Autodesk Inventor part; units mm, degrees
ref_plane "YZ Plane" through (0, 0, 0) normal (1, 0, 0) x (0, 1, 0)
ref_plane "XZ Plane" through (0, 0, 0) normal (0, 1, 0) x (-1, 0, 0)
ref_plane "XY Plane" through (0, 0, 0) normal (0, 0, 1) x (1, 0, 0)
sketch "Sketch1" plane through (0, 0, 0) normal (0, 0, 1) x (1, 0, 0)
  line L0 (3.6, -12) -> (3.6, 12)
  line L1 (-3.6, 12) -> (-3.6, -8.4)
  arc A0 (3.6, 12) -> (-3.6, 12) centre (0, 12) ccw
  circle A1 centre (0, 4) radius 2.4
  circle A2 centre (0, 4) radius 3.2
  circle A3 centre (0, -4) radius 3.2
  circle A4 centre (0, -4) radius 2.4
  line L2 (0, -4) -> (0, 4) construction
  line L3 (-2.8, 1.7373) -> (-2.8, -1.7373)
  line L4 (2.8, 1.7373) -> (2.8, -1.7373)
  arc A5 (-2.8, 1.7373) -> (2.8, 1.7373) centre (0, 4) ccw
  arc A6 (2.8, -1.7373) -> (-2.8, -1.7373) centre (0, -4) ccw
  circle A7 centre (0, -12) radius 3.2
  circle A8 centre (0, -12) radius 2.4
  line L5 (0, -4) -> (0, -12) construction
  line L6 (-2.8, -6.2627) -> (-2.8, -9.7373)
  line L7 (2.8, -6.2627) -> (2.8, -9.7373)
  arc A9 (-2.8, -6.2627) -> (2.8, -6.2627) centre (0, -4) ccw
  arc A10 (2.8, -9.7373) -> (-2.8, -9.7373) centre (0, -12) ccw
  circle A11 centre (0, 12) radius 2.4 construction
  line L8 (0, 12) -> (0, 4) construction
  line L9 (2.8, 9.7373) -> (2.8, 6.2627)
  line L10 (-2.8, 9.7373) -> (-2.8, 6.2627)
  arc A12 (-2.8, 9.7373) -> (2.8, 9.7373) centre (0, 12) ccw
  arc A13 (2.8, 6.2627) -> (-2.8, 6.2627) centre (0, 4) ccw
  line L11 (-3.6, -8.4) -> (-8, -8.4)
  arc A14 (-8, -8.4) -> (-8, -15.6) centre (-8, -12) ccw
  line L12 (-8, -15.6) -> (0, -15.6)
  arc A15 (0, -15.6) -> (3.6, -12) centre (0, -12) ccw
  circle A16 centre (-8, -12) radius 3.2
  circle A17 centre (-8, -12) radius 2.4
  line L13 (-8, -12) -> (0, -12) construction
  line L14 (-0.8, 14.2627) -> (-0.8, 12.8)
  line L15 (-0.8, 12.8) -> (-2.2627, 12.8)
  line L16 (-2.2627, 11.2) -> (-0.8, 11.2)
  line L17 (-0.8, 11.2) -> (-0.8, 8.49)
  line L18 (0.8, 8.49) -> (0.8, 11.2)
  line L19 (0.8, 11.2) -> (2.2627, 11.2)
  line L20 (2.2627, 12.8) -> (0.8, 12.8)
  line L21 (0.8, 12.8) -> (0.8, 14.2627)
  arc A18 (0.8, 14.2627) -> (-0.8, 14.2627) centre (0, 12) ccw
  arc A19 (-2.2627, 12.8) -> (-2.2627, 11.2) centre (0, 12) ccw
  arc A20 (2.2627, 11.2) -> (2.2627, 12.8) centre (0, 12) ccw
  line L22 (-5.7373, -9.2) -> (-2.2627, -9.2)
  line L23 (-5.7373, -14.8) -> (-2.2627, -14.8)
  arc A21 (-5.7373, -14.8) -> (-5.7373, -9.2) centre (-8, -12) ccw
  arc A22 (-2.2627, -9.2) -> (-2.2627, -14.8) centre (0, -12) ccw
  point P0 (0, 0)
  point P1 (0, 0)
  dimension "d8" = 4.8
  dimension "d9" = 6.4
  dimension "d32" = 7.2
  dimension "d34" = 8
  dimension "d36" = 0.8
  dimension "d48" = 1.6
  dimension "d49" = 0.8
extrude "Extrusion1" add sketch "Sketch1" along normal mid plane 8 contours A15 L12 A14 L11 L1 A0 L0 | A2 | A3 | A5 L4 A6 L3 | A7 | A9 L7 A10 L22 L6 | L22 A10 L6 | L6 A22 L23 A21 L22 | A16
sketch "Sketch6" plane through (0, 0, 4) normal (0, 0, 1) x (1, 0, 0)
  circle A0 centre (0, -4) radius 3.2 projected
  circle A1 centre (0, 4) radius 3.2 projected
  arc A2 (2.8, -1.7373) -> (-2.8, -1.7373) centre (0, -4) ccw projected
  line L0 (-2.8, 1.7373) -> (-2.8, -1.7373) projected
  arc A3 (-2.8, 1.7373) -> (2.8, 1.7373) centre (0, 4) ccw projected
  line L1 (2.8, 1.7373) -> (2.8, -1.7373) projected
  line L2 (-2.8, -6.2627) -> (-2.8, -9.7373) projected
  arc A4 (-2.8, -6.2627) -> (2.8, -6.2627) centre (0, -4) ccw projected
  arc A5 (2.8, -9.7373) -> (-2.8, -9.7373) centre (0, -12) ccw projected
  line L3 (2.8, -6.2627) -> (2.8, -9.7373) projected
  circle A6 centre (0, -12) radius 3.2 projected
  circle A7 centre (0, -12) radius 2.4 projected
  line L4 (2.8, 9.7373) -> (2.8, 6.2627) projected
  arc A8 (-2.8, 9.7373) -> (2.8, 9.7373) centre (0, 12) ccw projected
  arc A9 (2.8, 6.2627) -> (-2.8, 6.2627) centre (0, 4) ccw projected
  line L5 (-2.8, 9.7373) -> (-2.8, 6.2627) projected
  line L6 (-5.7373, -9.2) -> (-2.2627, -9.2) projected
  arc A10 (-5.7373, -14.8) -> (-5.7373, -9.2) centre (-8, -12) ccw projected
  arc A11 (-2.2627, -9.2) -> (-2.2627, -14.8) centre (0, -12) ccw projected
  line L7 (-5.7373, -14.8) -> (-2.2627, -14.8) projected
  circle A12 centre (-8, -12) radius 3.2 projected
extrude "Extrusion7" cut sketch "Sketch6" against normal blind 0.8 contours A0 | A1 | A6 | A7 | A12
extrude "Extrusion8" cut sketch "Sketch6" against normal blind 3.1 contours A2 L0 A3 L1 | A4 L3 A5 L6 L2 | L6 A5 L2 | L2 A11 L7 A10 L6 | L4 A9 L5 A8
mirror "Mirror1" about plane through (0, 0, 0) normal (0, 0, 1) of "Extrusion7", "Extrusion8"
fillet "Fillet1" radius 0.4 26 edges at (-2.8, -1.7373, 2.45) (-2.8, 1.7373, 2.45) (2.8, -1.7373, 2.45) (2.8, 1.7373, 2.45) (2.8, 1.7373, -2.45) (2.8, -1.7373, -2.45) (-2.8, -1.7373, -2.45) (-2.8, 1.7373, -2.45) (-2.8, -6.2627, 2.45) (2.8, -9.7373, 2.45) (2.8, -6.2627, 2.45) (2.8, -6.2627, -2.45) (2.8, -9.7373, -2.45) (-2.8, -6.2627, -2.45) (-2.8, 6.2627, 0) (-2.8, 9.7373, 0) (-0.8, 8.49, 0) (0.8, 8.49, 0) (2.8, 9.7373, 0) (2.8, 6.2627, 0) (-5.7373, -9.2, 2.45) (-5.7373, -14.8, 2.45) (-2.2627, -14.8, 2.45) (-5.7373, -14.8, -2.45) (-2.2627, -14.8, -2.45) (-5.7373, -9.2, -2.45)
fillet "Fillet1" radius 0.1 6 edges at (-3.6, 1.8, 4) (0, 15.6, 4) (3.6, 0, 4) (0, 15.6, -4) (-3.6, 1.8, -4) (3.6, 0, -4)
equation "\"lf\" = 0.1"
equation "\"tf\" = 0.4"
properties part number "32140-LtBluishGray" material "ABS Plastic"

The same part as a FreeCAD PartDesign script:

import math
import FreeCAD as App
import Part
import Sketcher

V = App.Vector
Q = App.Units.Quantity


def edges_at(feature, points):
    """Names of the edges that pass closest to the given points."""
    edges = feature.Shape.Edges
    near = lambda p: min(range(len(edges)), key=lambda i: edges[i].distToShape(Part.Vertex(*p))[0])
    return sorted({f"Edge{near(p) + 1}" for p in points})

doc = App.newDocument("Part")
body = doc.addObject("PartDesign::Body", "Body")

# Sketch on XY plane
sketch1 = doc.addObject("Sketcher::SketchObject", "Sketch")
body.addObject(sketch1)
sketch1.AttachmentSupport = (doc.XY_Plane, [""])
sketch1.MapMode = "FlatFace"
sketch1.addGeometry([
    Part.ArcOfCircle(Part.Circle(V(0, -12, 0), V(0, 0, 1), 3.6), math.radians(-90), math.radians(0)),  # 0
    Part.LineSegment(V(3.6, -12, 0), V(3.6, 12, 0)),  # 1
    Part.ArcOfCircle(Part.Circle(V(0, 12, 0), V(0, 0, 1), 3.6), math.radians(0), math.radians(180)),  # 2
    Part.LineSegment(V(-3.6, 12, 0), V(-3.6, -8.4, 0)),  # 3
    Part.LineSegment(V(-3.6, -8.4, 0), V(-8, -8.4, 0)),  # 4
    Part.ArcOfCircle(Part.Circle(V(-8, -12, 0), V(0, 0, 1), 3.6), math.radians(90), math.radians(270)),  # 5
    Part.LineSegment(V(-8, -15.6, 0), V(0, -15.6, 0)),  # 6
    Part.ArcOfCircle(Part.Circle(V(0, 12, 0), V(0, 0, 1), 3.6), math.radians(-77), math.radians(-39)),  # 7
    Part.LineSegment(V(2.8, 9.7, 0), V(2.8, 6.3, 0)),  # 8
    Part.ArcOfCircle(Part.Circle(V(0, 4, 0), V(0, 0, 1), 3.6), math.radians(39), math.radians(141)),  # 9
    Part.LineSegment(V(-2.8, 6.3, 0), V(-2.8, 9.7, 0)),  # 10
    Part.ArcOfCircle(Part.Circle(V(0, 12, 0), V(0, 0, 1), 3.6), math.radians(-141), math.radians(-103)),  # 11
    Part.LineSegment(V(-0.8, 8.5, 0), V(-0.8, 11.2, 0)),  # 12
    Part.LineSegment(V(-0.8, 11.2, 0), V(-2.3, 11.2, 0)),  # 13
    Part.ArcOfCircle(Part.Circle(V(0, 12, 0), V(0, 0, 1), 2.4), math.radians(161), math.radians(199)),  # 14
    Part.LineSegment(V(-2.3, 12.8, 0), V(-0.8, 12.8, 0)),  # 15
    Part.LineSegment(V(-0.8, 12.8, 0), V(-0.8, 14.3, 0)),  # 16
    Part.ArcOfCircle(Part.Circle(V(0, 12, 0), V(0, 0, 1), 2.4), math.radians(71), math.radians(109)),  # 17
    Part.LineSegment(V(0.8, 14.3, 0), V(0.8, 12.8, 0)),  # 18
    Part.LineSegment(V(0.8, 12.8, 0), V(2.3, 12.8, 0)),  # 19
    Part.ArcOfCircle(Part.Circle(V(0, 12, 0), V(0, 0, 1), 2.4), math.radians(-19), math.radians(19)),  # 20
    Part.LineSegment(V(2.3, 11.2, 0), V(0.8, 11.2, 0)),  # 21
    Part.LineSegment(V(0.8, 11.2, 0), V(0.8, 8.5, 0)),  # 22
    Part.Circle(V(-8, -12, 0), V(0, 0, 1), 2.4),  # 23
    Part.Circle(V(0, -12, 0), V(0, 0, 1), 2.4),  # 24
    Part.Circle(V(0, -4, 0), V(0, 0, 1), 2.4),  # 25
    Part.Circle(V(0, 4, 0), V(0, 0, 1), 2.4),  # 26
], False)
sketch1.addConstraint([
    Sketcher.Constraint("Tangent", 0, 2, 1, 1),
    Sketcher.Constraint("Tangent", 1, 2, 2, 1),
    Sketcher.Constraint("Tangent", 2, 2, 3, 1),
    Sketcher.Constraint("Coincident", 3, 2, 4, 1),
    Sketcher.Constraint("Tangent", 4, 2, 5, 1),
    Sketcher.Constraint("Tangent", 5, 2, 6, 1),
    Sketcher.Constraint("Tangent", 6, 2, 0, 1),
    Sketcher.Constraint("Coincident", 7, 2, 8, 1),
    Sketcher.Constraint("Coincident", 8, 2, 9, 1),
    Sketcher.Constraint("Coincident", 9, 2, 10, 1),
    Sketcher.Constraint("Coincident", 10, 2, 11, 1),
    Sketcher.Constraint("Coincident", 11, 2, 12, 1),
    Sketcher.Constraint("Coincident", 12, 2, 13, 1),
    Sketcher.Constraint("Coincident", 13, 2, 14, 2),
    Sketcher.Constraint("Coincident", 14, 1, 15, 1),
    Sketcher.Constraint("Coincident", 15, 2, 16, 1),
    Sketcher.Constraint("Coincident", 16, 2, 17, 2),
    Sketcher.Constraint("Coincident", 17, 1, 18, 1),
    Sketcher.Constraint("Coincident", 18, 2, 19, 1),
    Sketcher.Constraint("Coincident", 19, 2, 20, 2),
    Sketcher.Constraint("Coincident", 20, 1, 21, 1),
    Sketcher.Constraint("Coincident", 21, 2, 22, 1),
    Sketcher.Constraint("Coincident", 22, 2, 7, 1),
    Sketcher.Constraint("Vertical", 1),
    Sketcher.Constraint("Vertical", 3),
    Sketcher.Constraint("Horizontal", 4),
    Sketcher.Constraint("Horizontal", 6),
    Sketcher.Constraint("Vertical", 8),
    Sketcher.Constraint("Vertical", 10),
    Sketcher.Constraint("Vertical", 12),
    Sketcher.Constraint("Horizontal", 13),
    Sketcher.Constraint("Horizontal", 15),
    Sketcher.Constraint("Vertical", 16),
    Sketcher.Constraint("Vertical", 18),
    Sketcher.Constraint("Horizontal", 19),
    Sketcher.Constraint("Horizontal", 21),
    Sketcher.Constraint("Vertical", 22),
    Sketcher.Constraint("Coincident", 7, 3, 2, 3),
    Sketcher.Constraint("Coincident", 11, 3, 2, 3),
    Sketcher.Constraint("Coincident", 14, 3, 2, 3),
    Sketcher.Constraint("Coincident", 17, 3, 2, 3),
    Sketcher.Constraint("Coincident", 20, 3, 2, 3),
    Sketcher.Constraint("Coincident", 23, 3, 5, 3),
    Sketcher.Constraint("Coincident", 24, 3, 0, 3),
    Sketcher.Constraint("Coincident", 26, 3, 9, 3),
    Sketcher.Constraint("Equal", 0, 2),
    Sketcher.Constraint("Equal", 2, 5),
    Sketcher.Constraint("Equal", 5, 7),
    Sketcher.Constraint("Equal", 7, 9),
    Sketcher.Constraint("Equal", 9, 11),
    Sketcher.Constraint("Equal", 14, 17),
    Sketcher.Constraint("Equal", 17, 20),
    Sketcher.Constraint("Equal", 20, 23),
    Sketcher.Constraint("Equal", 23, 24),
    Sketcher.Constraint("Equal", 24, 25),
    Sketcher.Constraint("Equal", 25, 26),
    Sketcher.Constraint("Symmetric", 0, 3, 2, 3, -1, 1),
    Sketcher.Constraint("Symmetric", 9, 3, 25, 3, -1, 1),
    Sketcher.Constraint("Symmetric", 8, 2, 9, 2, -2),
    Sketcher.Constraint("Symmetric", 15, 2, 18, 2, -2),
    Sketcher.Constraint("Symmetric", 12, 2, 21, 2, -2),
    Sketcher.Constraint("Vertical", 13, 2, 14, 1),
    Sketcher.Constraint("Vertical", 12, 2, 15, 2),
    Sketcher.Constraint("Equal", 21, 16),
    Sketcher.Constraint("Diameter", 23, Q("4.8 mm")),
    Sketcher.Constraint("Radius", 0, Q("3.6 mm")),
    Sketcher.Constraint("DistanceX", 6, 1, 6, 2, Q("8 mm")),
    Sketcher.Constraint("DistanceY", 9, 3, 2, 3, Q("8 mm")),
    Sketcher.Constraint("DistanceY", 25, 3, 9, 3, Q("8 mm")),
    Sketcher.Constraint("DistanceX", 11, 2, -1, 1, Q("0.8 mm")),
    Sketcher.Constraint("DistanceX", 7, 2, 1, 2, Q("0.8 mm")),
])
pad1 = doc.addObject("PartDesign::Pad", "Pad")
body.addObject(pad1)
pad1.Profile = sketch1
pad1.Length = 8
pad1.Midplane = True

# Sketch on XY plane
sketch2 = doc.addObject("Sketcher::SketchObject", "Sketch001")
body.addObject(sketch2)
sketch2.AttachmentSupport = (doc.XY_Plane, [""])
sketch2.MapMode = "FlatFace"
sketch2.AttachmentOffset = App.Placement(V(0, 0, 4), App.Rotation())
sketch2.addGeometry([
    Part.Circle(V(0, -4, 0), V(0, 0, 1), 3.2),
    Part.Circle(V(0, 4, 0), V(0, 0, 1), 3.2),
    Part.Circle(V(0, -12, 0), V(0, 0, 1), 3.2),
    Part.Circle(V(-8, -12, 0), V(0, 0, 1), 3.2),
], False)
sketch2.addConstraint([
    Sketcher.Constraint("Equal", 0, 1),
    Sketcher.Constraint("Equal", 1, 2),
    Sketcher.Constraint("Equal", 2, 3),
    Sketcher.Constraint("Symmetric", 0, 3, 1, 3, -1, 1),
    Sketcher.Constraint("PointOnObject", 0, 3, -2),
    Sketcher.Constraint("PointOnObject", 2, 3, -2),
    Sketcher.Constraint("Horizontal", 2, 3, 3, 3),
    Sketcher.Constraint("Diameter", 0, Q("6.4 mm")),
    Sketcher.Constraint("DistanceY", 0, 3, -1, 1, Q("4 mm")),
    Sketcher.Constraint("DistanceY", 2, 3, -1, 1, Q("12 mm")),
    Sketcher.Constraint("DistanceX", 3, 3, -1, 1, Q("8 mm")),
])
pocket1 = doc.addObject("PartDesign::Pocket", "Pocket")
body.addObject(pocket1)
pocket1.Profile = sketch2
pocket1.Length = 0.8

# Sketch on XY plane
sketch3 = doc.addObject("Sketcher::SketchObject", "Sketch002")
body.addObject(sketch3)
sketch3.AttachmentSupport = (doc.XY_Plane, [""])
sketch3.MapMode = "FlatFace"
sketch3.AttachmentOffset = App.Placement(V(0, 0, 4), App.Rotation())
sketch3.addGeometry([
    Part.ArcOfCircle(Part.Circle(V(0, -4, 0), V(0, 0, 1), 3.6), math.radians(39), math.radians(141)),  # 0
    Part.LineSegment(V(2.8, -1.7, 0), V(2.8, 1.7, 0)),  # 1
    Part.ArcOfCircle(Part.Circle(V(0, 4, 0), V(0, 0, 1), 3.6), math.radians(-141), math.radians(-39)),  # 2
    Part.LineSegment(V(-2.8, 1.7, 0), V(-2.8, -1.7, 0)),  # 3
    Part.ArcOfCircle(Part.Circle(V(0, -4, 0), V(0, 0, 1), 3.6), math.radians(-141), math.radians(-39)),  # 4
    Part.LineSegment(V(-2.8, -6.3, 0), V(-2.8, -9.2, 0)),  # 5
    Part.LineSegment(V(-2.8, -9.2, 0), V(-5.7, -9.2, 0)),  # 6
    Part.ArcOfCircle(Part.Circle(V(-8, -12, 0), V(0, 0, 1), 3.6), math.radians(-51), math.radians(51)),  # 7
    Part.LineSegment(V(-5.7, -14.8, 0), V(-2.3, -14.8, 0)),  # 8
    Part.ArcOfCircle(Part.Circle(V(0, -12, 0), V(0, 0, 1), 3.6), math.radians(39), math.radians(231)),  # 9
    Part.LineSegment(V(2.8, -9.7, 0), V(2.8, -6.3, 0)),  # 10
    Part.LineSegment(V(2.8, 6.3, 0), V(2.8, 9.7, 0)),  # 11
    Part.ArcOfCircle(Part.Circle(V(0, 12, 0), V(0, 0, 1), 3.6), math.radians(-141), math.radians(-39)),  # 12
    Part.LineSegment(V(-2.8, 9.7, 0), V(-2.8, 6.3, 0)),  # 13
    Part.ArcOfCircle(Part.Circle(V(0, 4, 0), V(0, 0, 1), 3.6), math.radians(39), math.radians(141)),  # 14
], False)
sketch3.addConstraint([
    Sketcher.Constraint("Coincident", 0, 1, 1, 1),
    Sketcher.Constraint("Coincident", 1, 2, 2, 2),
    Sketcher.Constraint("Coincident", 2, 1, 3, 1),
    Sketcher.Constraint("Coincident", 3, 2, 0, 2),
    Sketcher.Constraint("Coincident", 4, 1, 5, 1),
    Sketcher.Constraint("Coincident", 5, 2, 6, 1),
    Sketcher.Constraint("Coincident", 6, 2, 7, 2),
    Sketcher.Constraint("Coincident", 7, 1, 8, 1),
    Sketcher.Constraint("Coincident", 8, 2, 9, 2),
    Sketcher.Constraint("Coincident", 9, 1, 10, 1),
    Sketcher.Constraint("Coincident", 10, 2, 4, 2),
    Sketcher.Constraint("Coincident", 11, 2, 12, 2),
    Sketcher.Constraint("Coincident", 12, 1, 13, 1),
    Sketcher.Constraint("Coincident", 13, 2, 14, 2),
    Sketcher.Constraint("Coincident", 14, 1, 11, 1),
    Sketcher.Constraint("Vertical", 1),
    Sketcher.Constraint("Vertical", 3),
    Sketcher.Constraint("Vertical", 5),
    Sketcher.Constraint("Horizontal", 6),
    Sketcher.Constraint("Horizontal", 8),
    Sketcher.Constraint("Vertical", 10),
    Sketcher.Constraint("Vertical", 11),
    Sketcher.Constraint("Vertical", 13),
    Sketcher.Constraint("Coincident", 4, 3, 0, 3),
    Sketcher.Constraint("Coincident", 14, 3, 2, 3),
    Sketcher.Constraint("Equal", 0, 2),
    Sketcher.Constraint("Equal", 2, 4),
    Sketcher.Constraint("Equal", 4, 7),
    Sketcher.Constraint("Equal", 7, 9),
    Sketcher.Constraint("Equal", 9, 12),
    Sketcher.Constraint("Equal", 12, 14),
    Sketcher.Constraint("Symmetric", 0, 3, 2, 3, -1, 1),
    Sketcher.Constraint("Symmetric", 9, 3, 12, 3, -1, 1),
    Sketcher.Constraint("Symmetric", 1, 2, 2, 1, -2),
    Sketcher.Constraint("Symmetric", 11, 2, 12, 1, -2),
    Sketcher.Constraint("Horizontal", 7, 3, 9, 3),
    Sketcher.Constraint("Horizontal", 4, 1, 10, 2),
    Sketcher.Constraint("Vertical", 3, 2, 4, 1),
    Sketcher.Constraint("Vertical", 6, 2, 7, 1),
    Sketcher.Constraint("Vertical", 10, 2, 11, 2),
    Sketcher.Constraint("Equal", 8, 1),
    Sketcher.Constraint("Equal", 6, 5),
    Sketcher.Constraint("Equal", 3, 10),
    Sketcher.Constraint("Radius", 0, Q("3.6 mm")),
    Sketcher.Constraint("DistanceY", 0, 3, -1, 1, Q("4 mm")),
    Sketcher.Constraint("DistanceX", -1, 1, 0, 1, Q("2.8 mm")),
])
pocket2 = doc.addObject("PartDesign::Pocket", "Pocket001")
body.addObject(pocket2)
pocket2.Profile = sketch3
pocket2.Length = 3.1
doc.recompute()

mirrored = doc.addObject("PartDesign::Mirrored", "Mirrored")
body.addObject(mirrored)
mirrored.Originals = [pocket1, pocket2]
mirrored.MirrorPlane = (doc.XY_Plane, [""])
body.Tip = mirrored
doc.recompute()

fillet = doc.addObject("PartDesign::Fillet", "Fillet")
body.addObject(fillet)
fillet.Base = (mirrored, edges_at(mirrored, [
    (-2.8, -1.737, 2.45),
    (-2.8, 1.737, 2.45),
    (2.8, -1.737, 2.45),
    (2.8, 1.737, 2.45),
    (2.8, 1.737, -2.45),
    (2.8, -1.737, -2.45),
    (-2.8, -1.737, -2.45),
    (-2.8, 1.737, -2.45),
    (-2.8, -6.263, 2.45),
    (2.8, -9.737, 2.45),
    (2.8, -6.263, 2.45),
    (2.8, -6.263, -2.45),
    (2.8, -9.737, -2.45),
    (-2.8, -6.263, -2.45),
    (-2.8, 6.263, 0),
    (-2.8, 9.737, 0),
    (-0.8, 8.49, 0),
    (0.8, 8.49, 0),
    (2.8, 9.737, 0),
    (2.8, 6.263, 0),
    (-5.737, -9.2, 2.45),
    (-5.737, -14.8, 2.45),
    (-2.263, -14.8, 2.45),
    (-5.737, -14.8, -2.45),
    (-2.263, -14.8, -2.45),
    (-5.737, -9.2, -2.45),
]))
fillet.Radius = 0.4
doc.recompute()

fillet2 = doc.addObject("PartDesign::Fillet", "Fillet001")
body.addObject(fillet2)
fillet2.Base = (fillet, edges_at(fillet, [
    (-3.6, 1.8, 4),
    (0, 15.6, 4),
    (3.6, 0, 4),
    (0, 15.6, -4),
    (-3.6, 1.8, -4),
    (3.6, 0, -4),
]))
fillet2.Radius = 0.1

doc.recompute()
